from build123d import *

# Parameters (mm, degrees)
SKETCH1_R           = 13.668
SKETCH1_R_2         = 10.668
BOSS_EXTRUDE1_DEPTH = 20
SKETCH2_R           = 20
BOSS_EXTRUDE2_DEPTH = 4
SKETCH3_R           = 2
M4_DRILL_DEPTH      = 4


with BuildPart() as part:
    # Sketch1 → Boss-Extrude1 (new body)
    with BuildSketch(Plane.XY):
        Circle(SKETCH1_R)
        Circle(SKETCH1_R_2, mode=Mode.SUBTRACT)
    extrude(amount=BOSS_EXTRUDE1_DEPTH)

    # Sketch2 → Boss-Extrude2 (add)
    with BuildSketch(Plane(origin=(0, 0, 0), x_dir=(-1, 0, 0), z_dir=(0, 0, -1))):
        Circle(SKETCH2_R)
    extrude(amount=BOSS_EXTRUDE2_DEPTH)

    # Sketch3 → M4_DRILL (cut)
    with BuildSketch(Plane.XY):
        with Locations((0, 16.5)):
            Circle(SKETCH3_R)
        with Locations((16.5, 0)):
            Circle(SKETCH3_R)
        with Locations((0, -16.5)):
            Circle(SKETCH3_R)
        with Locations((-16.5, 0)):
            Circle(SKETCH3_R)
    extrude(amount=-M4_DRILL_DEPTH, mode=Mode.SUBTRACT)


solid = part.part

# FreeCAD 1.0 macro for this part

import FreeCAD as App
import Part
import Sketcher
from FreeCAD import Vector
Q = App.Units.Quantity

doc = App.newDocument("Part")
body = doc.addObject("PartDesign::Body", "Body")

# Sketch on XY plane
sketch1 = body.newObject("Sketcher::SketchObject", "Sketch")
sketch1.AttachmentSupport = (doc.getObject("XY_Plane"), [""])
sketch1.MapMode = "FlatFace"
sketch1.addGeometry([
    Part.Circle(Vector(0, 0, 0), Vector(0, 0, 1), 14),
    Part.Circle(Vector(0, 0, 0), Vector(0, 0, 1), 11),
], False)
sketch1.addConstraint([
    Sketcher.Constraint("Coincident", 0, 3, -1, 1),
    Sketcher.Constraint("Coincident", 1, 3, -1, 1),
    Sketcher.Constraint("Diameter", 0, Q("27.336 mm")),
    Sketcher.Constraint("Diameter", 1, Q("21.336 mm")),
])
pad1 = body.newObject("PartDesign::Pad", "Pad")
pad1.Profile = sketch1
pad1.Length = 20

# Sketch on XY plane
sketch2 = body.newObject("Sketcher::SketchObject", "Sketch001")
sketch2.AttachmentSupport = (doc.getObject("XY_Plane"), [""])
sketch2.MapMode = "FlatFace"
sketch2.addGeometry(Part.Circle(Vector(0, 0, 0), Vector(0, 0, 1), 20), False)
sketch2.addConstraint([
    Sketcher.Constraint("Coincident", 0, 3, -1, 1),
    Sketcher.Constraint("Diameter", 0, Q("40 mm")),
])
pad2 = body.newObject("PartDesign::Pad", "Pad001")
pad2.Profile = sketch2
pad2.Length = 4
pad2.Reversed = True

# Sketch on XY plane
sketch3 = body.newObject("Sketcher::SketchObject", "Sketch002")
sketch3.AttachmentSupport = (doc.getObject("XY_Plane"), [""])
sketch3.MapMode = "FlatFace"
sketch3.addGeometry([
    Part.Circle(Vector(0, 16.5, 0), Vector(0, 0, 1), 2),
    Part.Circle(Vector(16.5, 0, 0), Vector(0, 0, 1), 2),
    Part.Circle(Vector(0, -16.5, 0), Vector(0, 0, 1), 2),
    Part.Circle(Vector(-16.5, 0, 0), Vector(0, 0, 1), 2),
], False)
sketch3.addConstraint([
    Sketcher.Constraint("Equal", 0, 1),
    Sketcher.Constraint("Equal", 1, 2),
    Sketcher.Constraint("Equal", 2, 3),
    Sketcher.Constraint("Symmetric", 0, 3, 2, 3, -1, 1),
    Sketcher.Constraint("Symmetric", 1, 3, 3, 3, -1, 1),
    Sketcher.Constraint("PointOnObject", 0, 3, -2),
    Sketcher.Constraint("PointOnObject", 1, 3, -1),
    Sketcher.Constraint("Diameter", 0, Q("4 mm")),
    Sketcher.Constraint("DistanceY", 2, 3, 0, 3, Q("33 mm")),
    Sketcher.Constraint("DistanceX", 3, 3, 1, 3, Q("33 mm")),
])
pocket1 = body.newObject("PartDesign::Pocket", "Pocket")
pocket1.Profile = sketch3
pocket1.Length = 4

doc.recompute()
